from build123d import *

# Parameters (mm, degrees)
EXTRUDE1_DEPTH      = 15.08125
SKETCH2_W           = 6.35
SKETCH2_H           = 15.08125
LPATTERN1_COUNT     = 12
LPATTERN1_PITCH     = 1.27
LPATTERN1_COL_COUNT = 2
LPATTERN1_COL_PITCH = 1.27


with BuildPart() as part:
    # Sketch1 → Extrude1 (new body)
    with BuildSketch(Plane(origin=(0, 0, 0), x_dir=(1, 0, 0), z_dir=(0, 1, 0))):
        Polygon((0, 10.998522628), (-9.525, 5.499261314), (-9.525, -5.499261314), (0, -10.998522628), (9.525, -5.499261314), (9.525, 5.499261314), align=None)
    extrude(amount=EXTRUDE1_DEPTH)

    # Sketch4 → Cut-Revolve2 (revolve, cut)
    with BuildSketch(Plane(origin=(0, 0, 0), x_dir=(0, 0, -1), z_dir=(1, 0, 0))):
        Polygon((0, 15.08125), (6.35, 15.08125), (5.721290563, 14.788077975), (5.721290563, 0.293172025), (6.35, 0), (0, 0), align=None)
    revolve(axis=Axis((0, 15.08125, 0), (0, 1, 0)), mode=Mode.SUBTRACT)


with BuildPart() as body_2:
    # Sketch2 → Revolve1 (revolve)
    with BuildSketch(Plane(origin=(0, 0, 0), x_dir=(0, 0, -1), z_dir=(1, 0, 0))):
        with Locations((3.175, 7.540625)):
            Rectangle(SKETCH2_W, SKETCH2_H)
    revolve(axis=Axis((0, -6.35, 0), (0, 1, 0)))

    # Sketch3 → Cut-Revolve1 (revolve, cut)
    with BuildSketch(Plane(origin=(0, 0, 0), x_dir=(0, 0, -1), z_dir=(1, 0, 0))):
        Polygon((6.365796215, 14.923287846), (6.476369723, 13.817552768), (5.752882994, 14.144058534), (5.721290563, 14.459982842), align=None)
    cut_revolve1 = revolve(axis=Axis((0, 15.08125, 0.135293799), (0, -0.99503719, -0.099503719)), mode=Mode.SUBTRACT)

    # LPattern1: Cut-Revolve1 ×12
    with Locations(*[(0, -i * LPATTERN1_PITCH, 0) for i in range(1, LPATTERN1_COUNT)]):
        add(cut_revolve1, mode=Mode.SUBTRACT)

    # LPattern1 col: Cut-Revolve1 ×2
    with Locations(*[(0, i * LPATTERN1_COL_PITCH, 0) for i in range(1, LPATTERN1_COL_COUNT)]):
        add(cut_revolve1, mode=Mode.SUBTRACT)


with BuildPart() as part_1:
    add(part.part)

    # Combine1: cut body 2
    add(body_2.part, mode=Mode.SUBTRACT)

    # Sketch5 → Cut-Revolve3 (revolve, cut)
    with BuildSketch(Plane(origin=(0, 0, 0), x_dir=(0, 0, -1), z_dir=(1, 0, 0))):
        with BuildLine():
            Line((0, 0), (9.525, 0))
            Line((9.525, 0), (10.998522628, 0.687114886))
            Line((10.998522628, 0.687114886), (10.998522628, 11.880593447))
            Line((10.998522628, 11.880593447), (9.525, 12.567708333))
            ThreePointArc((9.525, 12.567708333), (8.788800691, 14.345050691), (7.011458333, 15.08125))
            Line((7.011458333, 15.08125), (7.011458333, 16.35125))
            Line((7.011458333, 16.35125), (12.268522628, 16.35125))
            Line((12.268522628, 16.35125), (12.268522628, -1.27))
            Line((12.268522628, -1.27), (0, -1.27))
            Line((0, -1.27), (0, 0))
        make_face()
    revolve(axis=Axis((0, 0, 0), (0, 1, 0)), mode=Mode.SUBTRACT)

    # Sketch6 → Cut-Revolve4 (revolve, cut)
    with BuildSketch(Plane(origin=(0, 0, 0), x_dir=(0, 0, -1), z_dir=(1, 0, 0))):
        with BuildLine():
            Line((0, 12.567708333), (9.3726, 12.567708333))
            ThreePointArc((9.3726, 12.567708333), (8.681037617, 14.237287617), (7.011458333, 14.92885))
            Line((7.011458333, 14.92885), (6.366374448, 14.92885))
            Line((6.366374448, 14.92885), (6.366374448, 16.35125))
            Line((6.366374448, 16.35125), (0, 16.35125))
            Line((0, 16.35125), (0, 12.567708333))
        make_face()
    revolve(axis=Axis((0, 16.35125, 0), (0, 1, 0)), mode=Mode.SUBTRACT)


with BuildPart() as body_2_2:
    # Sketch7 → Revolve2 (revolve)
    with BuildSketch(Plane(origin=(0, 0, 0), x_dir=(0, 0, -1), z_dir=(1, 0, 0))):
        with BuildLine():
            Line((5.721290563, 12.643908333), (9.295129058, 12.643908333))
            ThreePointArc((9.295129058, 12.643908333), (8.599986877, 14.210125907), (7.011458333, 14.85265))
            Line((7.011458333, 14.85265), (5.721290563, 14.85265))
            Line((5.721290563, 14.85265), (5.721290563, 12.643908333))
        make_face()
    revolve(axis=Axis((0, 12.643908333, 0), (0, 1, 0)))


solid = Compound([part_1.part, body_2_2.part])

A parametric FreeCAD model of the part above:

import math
import FreeCAD as App
import Part
import Sketcher
from FreeCAD import Vector
Q = App.Units.Quantity


def add_polygon(sketch, points):
    """Adds a closed chain of lines whose ends are joined by coincident constraints."""
    first, n = sketch.GeometryCount, len(points)
    for a, b in zip(points, points[1:] + points[:1]):
        sketch.addGeometry(Part.LineSegment(App.Vector(*a, 0), App.Vector(*b, 0)), False)
    for i in range(n):
        sketch.addConstraint(Sketcher.Constraint("Coincident", first + i, 2, first + (i + 1) % n, 1))

doc = App.newDocument("Part")
body = doc.addObject("PartDesign::Body", "Body")

# Sketch on XZ plane
sketch1 = body.newObject("Sketcher::SketchObject", "Sketch")
sketch1.AttachmentSupport = (doc.getObject("XZ_Plane"), [""])
sketch1.MapMode = "FlatFace"
add_polygon(sketch1, [(0, -10.998523), (-9.525, -5.499261), (-9.525, 5.499261), (0, 10.998523), (9.525, 5.499261), (9.525, -5.499261)])  # lines 0-5
sketch1.addConstraint([
    Sketcher.Constraint("Vertical", 1),
    Sketcher.Constraint("Vertical", 4),
    Sketcher.Constraint("Symmetric", 0, 2, 3, 2, -1, 1),
    Sketcher.Constraint("Symmetric", 2, 2, 5, 2, -1, 1),
    Sketcher.Constraint("PointOnObject", 2, 2, -2),
    Sketcher.Constraint("Parallel", 2, 5),
    Sketcher.Constraint("Horizontal", 1, 2, 3, 2),
    Sketcher.Constraint("Angle", 0, Q("150 deg")),
    Sketcher.Constraint("DistanceX", 1, 2, 3, 2, Q("0.75 in")),
    Sketcher.Constraint("DistanceY", 1, 1, 1, 2, Q("10.998523 mm")),
])
pad1 = body.newObject("PartDesign::Pad", "Pad")
pad1.Profile = sketch1
pad1.Length = Q("0.59375 in")
pad1.Reversed = True

# Sketch on YZ plane
sketch2 = body.newObject("Sketcher::SketchObject", "Sketch001")
sketch2.AttachmentSupport = (doc.getObject("YZ_Plane"), [""])
sketch2.MapMode = "FlatFace"
add_polygon(sketch2, [(15.08125, -6.35), (15.08125, 0), (0, 0), (0, -6.35), (0.293172, -5.721291), (14.788078, -5.721291)])  # lines 0-5
sketch2.addConstraint([
    Sketcher.Constraint("Vertical", 0),
    Sketcher.Constraint("Horizontal", 1),
    Sketcher.Constraint("Vertical", 2),
    Sketcher.Constraint("Horizontal", 4),
    Sketcher.Constraint("Coincident", 1, 2, -1, 1),
    Sketcher.Constraint("Horizontal", 2, 2, 5, 2),
    Sketcher.Constraint("Equal", 3, 5),
    Sketcher.Constraint("Angle", 3, Q("65 deg")),
    Sketcher.Constraint("DistanceY", 0, 1, 0, 2, Q("0.25 in")),
    Sketcher.Constraint("DistanceX", 1, 2, 1, 1, Q("0.59375 in")),
    Sketcher.Constraint("DistanceX", 4, 1, 4, 2, Q("14.494906 mm")),
])
groove = body.newObject("PartDesign::Groove", "Groove")
groove.Profile = sketch2
groove.ReferenceAxis = (sketch2, ["H_Axis"])
groove.Angle = 360
body2 = doc.addObject("PartDesign::Body", "Body001")

# Sketch on YZ plane
sketch3 = body2.newObject("Sketcher::SketchObject", "Sketch002")
sketch3.AttachmentSupport = (doc.getObject("YZ_Plane001"), [""])
sketch3.MapMode = "FlatFace"
add_polygon(sketch3, [(15.08125, 0), (0, 0), (0, -6.35), (15.08125, -6.35)])  # lines 0-3
sketch3.addConstraint([
    Sketcher.Constraint("Horizontal", 0),
    Sketcher.Constraint("Vertical", 1),
    Sketcher.Constraint("Horizontal", 2),
    Sketcher.Constraint("Vertical", 3),
    Sketcher.Constraint("Coincident", 0, 2, -1, 1),
    Sketcher.Constraint("DistanceY", 1, 2, 1, 1, Q("0.25 in")),
    Sketcher.Constraint("DistanceX", 0, 2, 0, 1, Q("0.59375 in")),
])
revolution = body2.newObject("PartDesign::Revolution", "Revolution")
revolution.Profile = sketch3
revolution.ReferenceAxis = (sketch3, ["H_Axis"])
revolution.Angle = 360

# Sketch on YZ plane
sketch4 = body2.newObject("Sketcher::SketchObject", "Sketch003")
sketch4.AttachmentSupport = (doc.getObject("YZ_Plane001"), [""])
sketch4.MapMode = "FlatFace"
add_polygon(sketch4, [(13.817553, -6.47637), (14.923288, -6.365796), (14.459983, -5.721291), (14.144059, -5.752883)])  # lines 0-3
sketch4.addGeometry(Part.LineSegment(Vector(14.28118, 0.055287, 0), Vector(13.175444, -0.055287, 0)), True)  # axis
sketch4.addConstraint([
    Sketcher.Constraint("Parallel", 0, 2),
    Sketcher.Constraint("Parallel", 2, 4),
    Sketcher.Constraint("Equal", 1, 3),
    Sketcher.Constraint("Equal", 0, 4),
    Sketcher.Constraint("Distance", 1, Q("0.03125 in")),
    Sketcher.Constraint("Distance", 2, Q("0.0125 in")),
    Sketcher.Constraint("Distance", 0, Q("1.11125 mm")),
    Sketcher.Constraint("DistanceY", 1, 2, -1, 1, Q("5.721291 mm")),
    Sketcher.Constraint("DistanceX", -1, 1, 2, 2, Q("14.144059 mm")),
    Sketcher.Constraint("DistanceY", 3, 2, -1, 1, Q("6.47637 mm")),
    Sketcher.Constraint("DistanceX", -1, 1, 4, 1, Q("14.28118 mm")),
    Sketcher.Constraint("DistanceY", 2, 2, 4, 1, Q("5.80817 mm")),
])
groove2 = body2.newObject("PartDesign::Groove", "Groove001")
groove2.Profile = sketch4
groove2.ReferenceAxis = (sketch4, ["Axis0"])
groove2.Angle = 360
doc.recompute()

linearpattern = body2.newObject("PartDesign::LinearPattern", "LinearPattern")
linearpattern.Originals = [groove2]
linearpattern.Direction = (doc.getObject("Y_Axis001"), [""])
linearpattern.Mode = "offset"
linearpattern.Offset = Q("0.05 in")
linearpattern.Occurrences = 12
linearpattern.Reversed = True
body2.Tip = linearpattern
doc.recompute()

linearpattern2 = body2.newObject("PartDesign::LinearPattern", "LinearPattern001")
linearpattern2.Originals = [groove2]
linearpattern2.Direction = (doc.getObject("Y_Axis001"), [""])
linearpattern2.Mode = "offset"
linearpattern2.Offset = Q("0.05 in")
linearpattern2.Occurrences = 2
body2.Tip = linearpattern2
doc.recompute()

boolean = body.newObject("PartDesign::Boolean", "Boolean")
boolean.Type = "Cut"
boolean.addObjects([body2])

# Sketch on YZ plane
sketch5 = body.newObject("Sketcher::SketchObject", "Sketch004")
sketch5.AttachmentSupport = (doc.getObject("YZ_Plane"), [""])
sketch5.MapMode = "FlatFace"
sketch5.addGeometry([
    Part.LineSegment(Vector(0, -9.525, 0), Vector(0, 0, 0)),  # 0
    Part.LineSegment(Vector(0, 0, 0), Vector(-1.27, 0, 0)),  # 1
    Part.LineSegment(Vector(-1.27, 0, 0), Vector(-1.27, -12.268523, 0)),  # 2
    Part.LineSegment(Vector(-1.27, -12.268523, 0), Vector(16.35125, -12.268523, 0)),  # 3
    Part.LineSegment(Vector(16.35125, -12.268523, 0), Vector(16.35125, -7.011458, 0)),  # 4
    Part.LineSegment(Vector(16.35125, -7.011458, 0), Vector(15.08125, -7.011458, 0)),  # 5
    Part.ArcOfCircle(Part.Circle(Vector(12.567708, -7.011458, 0), Vector(0, 0, 1), 2.513542), math.radians(-90), math.radians(0)),  # 6
    Part.LineSegment(Vector(12.567708, -9.525, 0), Vector(11.880593, -10.998523, 0)),  # 7
    Part.LineSegment(Vector(11.880593, -10.998523, 0), Vector(0.687115, -10.998523, 0)),  # 8
    Part.LineSegment(Vector(0.687115, -10.998523, 0), Vector(0, -9.525, 0)),  # 9
], False)
sketch5.addConstraint([
    Sketcher.Constraint("Coincident", 0, 2, 1, 1),
    Sketcher.Constraint("Coincident", 1, 2, 2, 1),
    Sketcher.Constraint("Coincident", 2, 2, 3, 1),
    Sketcher.Constraint("Coincident", 3, 2, 4, 1),
    Sketcher.Constraint("Coincident", 4, 2, 5, 1),
    Sketcher.Constraint("Coincident", 5, 2, 6, 2),
    Sketcher.Constraint("Coincident", 6, 1, 7, 1),
    Sketcher.Constraint("Coincident", 7, 2, 8, 1),
    Sketcher.Constraint("Coincident", 8, 2, 9, 1),
    Sketcher.Constraint("Coincident", 9, 2, 0, 1),
    Sketcher.Constraint("Vertical", 0),
    Sketcher.Constraint("Horizontal", 1),
    Sketcher.Constraint("Vertical", 2),
    Sketcher.Constraint("Horizontal", 3),
    Sketcher.Constraint("Vertical", 4),
    Sketcher.Constraint("Horizontal", 5),
    Sketcher.Constraint("Horizontal", 8),
    Sketcher.Constraint("Coincident", 0, 2, -1, 1),
    Sketcher.Constraint("Horizontal", 6, 3, 4, 2),
    Sketcher.Constraint("Horizontal", 6, 1, 9, 2),
    Sketcher.Constraint("Equal", 1, 5),
    Sketcher.Constraint("Equal", 7, 9),
    Sketcher.Constraint("Angle", 7, Q("-115 deg")),
    Sketcher.Constraint("DistanceX", 1, 2, 1, 1, Q("0.05 in")),
    Sketcher.Constraint("DistanceY", 0, 1, 0, 2, Q("0.375 in")),
    Sketcher.Constraint("DistanceY", 3, 2, 7, 2, Q("0.05 in")),
    Sketcher.Constraint("DistanceX", -1, 1, 5, 2, Q("0.59375 in")),
    Sketcher.Constraint("Radius", 6, Q("2.513542 mm")),
    Sketcher.Constraint("DistanceX", 8, 2, 8, 1, Q("11.193479 mm")),
    Sketcher.Constraint("DistanceY", 2, 2, 2, 1, Q("12.268523 mm")),
])
groove3 = body.newObject("PartDesign::Groove", "Groove002")
groove3.Profile = sketch5
groove3.ReferenceAxis = (sketch5, ["H_Axis"])
groove3.Angle = 360

# Sketch on YZ plane
sketch6 = body.newObject("Sketcher::SketchObject", "Sketch005")
sketch6.AttachmentSupport = (doc.getObject("YZ_Plane"), [""])
sketch6.MapMode = "FlatFace"
sketch6.addGeometry([
    Part.LineSegment(Vector(12.567708, 0, 0), Vector(12.567708, -9.3726, 0)),  # 0
    Part.ArcOfCircle(Part.Circle(Vector(12.567708, -7.011458, 0), Vector(0, 0, 1), 2.361142), math.radians(-90), math.radians(0)),  # 1
    Part.LineSegment(Vector(14.92885, -7.011458, 0), Vector(14.92885, -6.366374, 0)),  # 2
    Part.LineSegment(Vector(14.92885, -6.366374, 0), Vector(16.35125, -6.366374, 0)),  # 3
    Part.LineSegment(Vector(16.35125, -6.366374, 0), Vector(16.35125, 0, 0)),  # 4
    Part.LineSegment(Vector(16.35125, 0, 0), Vector(12.567708, 0, 0)),  # 5
], False)
sketch6.addConstraint([
    Sketcher.Constraint("Coincident", 0, 2, 1, 1),
    Sketcher.Constraint("Tangent", 1, 2, 2, 1),
    Sketcher.Constraint("Coincident", 2, 2, 3, 1),
    Sketcher.Constraint("Coincident", 3, 2, 4, 1),
    Sketcher.Constraint("Coincident", 4, 2, 5, 1),
    Sketcher.Constraint("Coincident", 5, 2, 0, 1),
    Sketcher.Constraint("Vertical", 0),
    Sketcher.Constraint("Vertical", 2),
    Sketcher.Constraint("Horizontal", 3),
    Sketcher.Constraint("Vertical", 4),
    Sketcher.Constraint("Horizontal", 5),
    Sketcher.Constraint("PointOnObject", 4, 2, -1),
    Sketcher.Constraint("Vertical", 1, 3, 0, 2),
    Sketcher.Constraint("DistanceX", 3, 1, 3, 2, Q("0.056 in")),
    Sketcher.Constraint("DistanceY", 0, 2, 0, 1, Q("0.369 in")),
    Sketcher.Constraint("Radius", 1, Q("2.361142 mm")),
    Sketcher.Constraint("DistanceY", 2, 1, 2, 2, Q("0.645084 mm")),
    Sketcher.Constraint("DistanceX", -1, 1, 1, 3, Q("12.567708 mm")),
])
groove4 = body.newObject("PartDesign::Groove", "Groove003")
groove4.Profile = sketch6
groove4.ReferenceAxis = (sketch6, ["H_Axis"])
groove4.Angle = 360
body3 = doc.addObject("PartDesign::Body", "Body002")

# Sketch on YZ plane
sketch7 = body3.newObject("Sketcher::SketchObject", "Sketch006")
sketch7.AttachmentSupport = (doc.getObject("YZ_Plane002"), [""])
sketch7.MapMode = "FlatFace"
sketch7.addGeometry([
    Part.LineSegment(Vector(12.643908, -5.721291, 0), Vector(12.643908, -9.295129, 0)),
    Part.ArcOfCircle(Part.Circle(Vector(12.567708, -7.011458, 0), Vector(0, 0, 1), 2.284942), math.radians(-88.088902), math.radians(0)),
    Part.LineSegment(Vector(14.85265, -7.011458, 0), Vector(14.85265, -5.721291, 0)),
    Part.LineSegment(Vector(14.85265, -5.721291, 0), Vector(12.643908, -5.721291, 0)),
], False)
sketch7.addConstraint([
    Sketcher.Constraint("Coincident", 0, 2, 1, 1),
    Sketcher.Constraint("Tangent", 1, 2, 2, 1),
    Sketcher.Constraint("Coincident", 2, 2, 3, 1),
    Sketcher.Constraint("Coincident", 3, 2, 0, 1),
    Sketcher.Constraint("Vertical", 0),
    Sketcher.Constraint("Vertical", 2),
    Sketcher.Constraint("Horizontal", 3),
    Sketcher.Constraint("Radius", 1, Q("2.284942 mm")),
    Sketcher.Constraint("DistanceX", 1, 3, 0, 2, Q("0.003 in")),
    Sketcher.Constraint("DistanceY", 0, 2, 0, 1, Q("3.573838 mm")),
    Sketcher.Constraint("DistanceX", -1, 1, 1, 3, Q("12.567708 mm")),
    Sketcher.Constraint("DistanceY", 1, 3, -1, 1, Q("7.011458 mm")),
])
revolution2 = body3.newObject("PartDesign::Revolution", "Revolution001")
revolution2.Profile = sketch7
revolution2.ReferenceAxis = (sketch7, ["H_Axis"])
revolution2.Angle = 360

doc.recompute()
